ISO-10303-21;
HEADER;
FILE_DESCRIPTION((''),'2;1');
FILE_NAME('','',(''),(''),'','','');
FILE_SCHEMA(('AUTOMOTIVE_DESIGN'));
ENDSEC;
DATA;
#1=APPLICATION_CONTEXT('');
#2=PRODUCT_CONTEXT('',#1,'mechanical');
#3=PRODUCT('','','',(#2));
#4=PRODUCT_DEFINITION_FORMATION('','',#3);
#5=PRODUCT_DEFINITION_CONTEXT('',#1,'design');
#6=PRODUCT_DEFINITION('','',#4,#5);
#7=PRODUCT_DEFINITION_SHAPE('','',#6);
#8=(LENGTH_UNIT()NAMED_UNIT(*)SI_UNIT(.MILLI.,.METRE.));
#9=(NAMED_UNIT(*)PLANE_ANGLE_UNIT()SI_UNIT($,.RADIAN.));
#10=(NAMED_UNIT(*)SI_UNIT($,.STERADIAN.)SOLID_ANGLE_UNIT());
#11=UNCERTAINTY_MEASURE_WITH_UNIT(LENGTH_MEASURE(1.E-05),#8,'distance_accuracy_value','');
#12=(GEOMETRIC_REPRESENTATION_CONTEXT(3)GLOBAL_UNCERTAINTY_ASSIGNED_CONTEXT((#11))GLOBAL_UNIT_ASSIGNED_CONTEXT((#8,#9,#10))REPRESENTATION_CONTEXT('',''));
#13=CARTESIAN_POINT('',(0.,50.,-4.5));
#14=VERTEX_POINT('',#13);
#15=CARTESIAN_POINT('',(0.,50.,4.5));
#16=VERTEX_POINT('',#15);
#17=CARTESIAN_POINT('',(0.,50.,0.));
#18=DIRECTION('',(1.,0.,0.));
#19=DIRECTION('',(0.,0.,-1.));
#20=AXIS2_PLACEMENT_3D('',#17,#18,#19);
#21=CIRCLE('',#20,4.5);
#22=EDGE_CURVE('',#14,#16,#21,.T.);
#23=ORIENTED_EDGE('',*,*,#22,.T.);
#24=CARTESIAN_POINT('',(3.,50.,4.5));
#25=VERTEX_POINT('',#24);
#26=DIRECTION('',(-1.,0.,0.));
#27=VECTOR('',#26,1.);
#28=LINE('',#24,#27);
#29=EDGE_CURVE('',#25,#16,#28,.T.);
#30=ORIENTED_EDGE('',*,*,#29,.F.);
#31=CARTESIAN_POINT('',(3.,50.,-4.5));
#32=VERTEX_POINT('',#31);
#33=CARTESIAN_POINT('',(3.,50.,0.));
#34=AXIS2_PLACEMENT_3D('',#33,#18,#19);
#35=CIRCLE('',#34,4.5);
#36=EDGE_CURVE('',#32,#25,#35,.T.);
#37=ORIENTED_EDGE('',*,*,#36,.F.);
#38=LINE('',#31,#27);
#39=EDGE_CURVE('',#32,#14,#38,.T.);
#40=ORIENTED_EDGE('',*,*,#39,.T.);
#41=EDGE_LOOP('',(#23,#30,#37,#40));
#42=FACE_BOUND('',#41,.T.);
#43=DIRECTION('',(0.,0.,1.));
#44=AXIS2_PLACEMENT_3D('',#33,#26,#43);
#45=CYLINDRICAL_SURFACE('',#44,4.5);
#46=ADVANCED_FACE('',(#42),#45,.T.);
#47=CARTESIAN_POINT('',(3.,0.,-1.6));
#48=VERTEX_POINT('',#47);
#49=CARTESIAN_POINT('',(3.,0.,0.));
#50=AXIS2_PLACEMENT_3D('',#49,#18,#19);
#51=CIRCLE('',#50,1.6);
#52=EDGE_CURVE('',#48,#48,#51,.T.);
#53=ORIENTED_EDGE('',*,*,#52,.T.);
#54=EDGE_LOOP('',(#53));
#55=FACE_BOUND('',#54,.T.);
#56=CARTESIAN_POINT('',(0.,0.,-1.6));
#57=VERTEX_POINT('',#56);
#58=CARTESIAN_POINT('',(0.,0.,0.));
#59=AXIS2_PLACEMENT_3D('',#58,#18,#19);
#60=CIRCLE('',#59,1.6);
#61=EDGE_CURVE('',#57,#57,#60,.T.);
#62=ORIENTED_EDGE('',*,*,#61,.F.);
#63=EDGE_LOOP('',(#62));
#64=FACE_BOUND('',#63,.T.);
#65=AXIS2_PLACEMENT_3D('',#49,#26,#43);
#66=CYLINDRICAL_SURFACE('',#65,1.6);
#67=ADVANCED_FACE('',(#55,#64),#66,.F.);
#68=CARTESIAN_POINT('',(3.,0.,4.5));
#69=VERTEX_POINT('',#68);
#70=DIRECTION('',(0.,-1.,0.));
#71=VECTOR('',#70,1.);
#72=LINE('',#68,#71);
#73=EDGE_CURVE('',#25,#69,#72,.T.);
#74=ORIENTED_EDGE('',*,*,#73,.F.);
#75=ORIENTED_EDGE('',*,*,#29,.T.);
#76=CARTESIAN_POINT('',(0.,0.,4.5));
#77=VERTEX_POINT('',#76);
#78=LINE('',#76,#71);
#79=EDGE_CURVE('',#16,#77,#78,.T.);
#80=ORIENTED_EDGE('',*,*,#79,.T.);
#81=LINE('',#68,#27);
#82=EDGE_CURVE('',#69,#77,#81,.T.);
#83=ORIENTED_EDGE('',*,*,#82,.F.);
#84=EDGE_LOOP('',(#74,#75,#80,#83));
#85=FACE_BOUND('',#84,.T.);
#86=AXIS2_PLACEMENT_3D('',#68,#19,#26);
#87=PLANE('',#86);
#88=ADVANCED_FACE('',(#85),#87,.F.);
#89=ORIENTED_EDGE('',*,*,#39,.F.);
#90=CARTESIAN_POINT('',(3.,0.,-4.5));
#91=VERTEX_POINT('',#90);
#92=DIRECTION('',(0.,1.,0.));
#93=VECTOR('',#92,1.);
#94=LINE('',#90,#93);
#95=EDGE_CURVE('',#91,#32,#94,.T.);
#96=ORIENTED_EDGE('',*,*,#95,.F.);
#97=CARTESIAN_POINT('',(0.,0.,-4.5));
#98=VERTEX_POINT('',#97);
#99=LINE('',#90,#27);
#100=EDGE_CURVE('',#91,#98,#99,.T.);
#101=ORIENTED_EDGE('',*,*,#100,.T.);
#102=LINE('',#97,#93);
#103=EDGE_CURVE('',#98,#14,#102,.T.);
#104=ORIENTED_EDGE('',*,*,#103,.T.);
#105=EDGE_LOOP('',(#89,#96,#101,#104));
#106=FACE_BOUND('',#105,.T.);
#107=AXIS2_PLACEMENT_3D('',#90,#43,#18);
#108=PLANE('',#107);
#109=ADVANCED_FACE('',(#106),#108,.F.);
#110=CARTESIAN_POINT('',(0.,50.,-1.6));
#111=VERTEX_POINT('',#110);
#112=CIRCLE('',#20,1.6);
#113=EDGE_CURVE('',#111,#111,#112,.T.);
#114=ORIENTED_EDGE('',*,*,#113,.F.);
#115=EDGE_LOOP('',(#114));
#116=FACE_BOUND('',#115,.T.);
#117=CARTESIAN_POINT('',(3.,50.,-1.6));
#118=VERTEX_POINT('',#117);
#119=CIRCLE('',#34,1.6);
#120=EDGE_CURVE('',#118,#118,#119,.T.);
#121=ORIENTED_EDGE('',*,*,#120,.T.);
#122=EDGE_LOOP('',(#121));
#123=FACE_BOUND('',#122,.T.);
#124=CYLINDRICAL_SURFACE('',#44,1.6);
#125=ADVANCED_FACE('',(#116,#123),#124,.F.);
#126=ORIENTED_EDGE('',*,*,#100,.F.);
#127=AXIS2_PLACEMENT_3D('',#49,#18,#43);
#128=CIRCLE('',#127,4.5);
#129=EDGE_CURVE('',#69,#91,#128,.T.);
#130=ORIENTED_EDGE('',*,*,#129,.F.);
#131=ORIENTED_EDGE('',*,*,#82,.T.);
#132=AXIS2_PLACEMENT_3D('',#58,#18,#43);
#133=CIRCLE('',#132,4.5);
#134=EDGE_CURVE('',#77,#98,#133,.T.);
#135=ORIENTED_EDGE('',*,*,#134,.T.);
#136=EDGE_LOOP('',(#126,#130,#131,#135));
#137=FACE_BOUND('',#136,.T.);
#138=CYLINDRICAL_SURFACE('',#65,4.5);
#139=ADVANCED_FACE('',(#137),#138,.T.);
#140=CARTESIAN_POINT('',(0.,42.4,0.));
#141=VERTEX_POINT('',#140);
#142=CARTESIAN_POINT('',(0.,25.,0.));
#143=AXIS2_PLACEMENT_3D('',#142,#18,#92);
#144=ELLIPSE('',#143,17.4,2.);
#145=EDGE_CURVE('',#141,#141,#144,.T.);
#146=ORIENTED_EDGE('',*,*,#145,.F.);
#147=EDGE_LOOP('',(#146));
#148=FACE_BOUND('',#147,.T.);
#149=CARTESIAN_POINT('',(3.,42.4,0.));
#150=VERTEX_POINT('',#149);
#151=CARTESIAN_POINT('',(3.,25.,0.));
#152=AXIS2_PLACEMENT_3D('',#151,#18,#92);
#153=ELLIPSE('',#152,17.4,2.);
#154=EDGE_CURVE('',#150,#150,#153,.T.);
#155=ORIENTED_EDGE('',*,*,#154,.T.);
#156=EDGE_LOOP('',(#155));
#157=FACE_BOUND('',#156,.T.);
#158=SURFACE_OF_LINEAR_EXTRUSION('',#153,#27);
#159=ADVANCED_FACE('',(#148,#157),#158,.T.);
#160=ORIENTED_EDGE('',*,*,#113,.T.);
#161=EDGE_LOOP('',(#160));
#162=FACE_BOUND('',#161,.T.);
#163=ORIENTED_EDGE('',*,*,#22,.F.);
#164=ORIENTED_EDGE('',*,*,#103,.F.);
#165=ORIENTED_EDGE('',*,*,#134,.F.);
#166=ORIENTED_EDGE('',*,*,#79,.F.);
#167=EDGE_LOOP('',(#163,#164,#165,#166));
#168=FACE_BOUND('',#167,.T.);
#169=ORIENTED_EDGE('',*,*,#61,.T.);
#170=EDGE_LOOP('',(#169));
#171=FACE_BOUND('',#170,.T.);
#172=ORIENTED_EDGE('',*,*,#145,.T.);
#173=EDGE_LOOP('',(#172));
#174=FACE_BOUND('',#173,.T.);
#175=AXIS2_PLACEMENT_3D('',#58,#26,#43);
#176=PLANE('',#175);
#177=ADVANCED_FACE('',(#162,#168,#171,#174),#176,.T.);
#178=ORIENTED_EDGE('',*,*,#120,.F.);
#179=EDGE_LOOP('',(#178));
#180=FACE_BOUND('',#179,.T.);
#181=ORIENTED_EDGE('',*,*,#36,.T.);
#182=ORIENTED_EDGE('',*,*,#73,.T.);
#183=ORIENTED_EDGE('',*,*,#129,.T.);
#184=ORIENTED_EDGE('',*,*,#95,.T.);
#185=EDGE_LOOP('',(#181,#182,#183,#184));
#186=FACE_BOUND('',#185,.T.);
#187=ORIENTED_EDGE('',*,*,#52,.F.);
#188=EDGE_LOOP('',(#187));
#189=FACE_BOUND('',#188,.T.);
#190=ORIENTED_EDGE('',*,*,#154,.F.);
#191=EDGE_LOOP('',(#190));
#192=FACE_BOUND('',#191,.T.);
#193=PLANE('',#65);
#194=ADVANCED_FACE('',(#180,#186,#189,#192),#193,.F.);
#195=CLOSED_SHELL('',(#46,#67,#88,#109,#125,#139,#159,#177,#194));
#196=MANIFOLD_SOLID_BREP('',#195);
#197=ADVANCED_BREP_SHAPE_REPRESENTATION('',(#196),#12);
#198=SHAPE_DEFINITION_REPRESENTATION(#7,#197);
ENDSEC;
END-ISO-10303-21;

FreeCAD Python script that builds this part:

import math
import FreeCAD as App
import Part
import Sketcher
from FreeCAD import Vector

doc = App.newDocument("Part")
body = doc.addObject("PartDesign::Body", "Body")

sketch1 = body.newObject("Sketcher::SketchObject", "Sketch")
sketch1.AttachmentSupport = (doc.getObject("YZ_Plane"), [""])
sketch1.MapMode = "FlatFace"
sketch1.addGeometry(Part.LineSegment(Vector(50, 4.5, 0), Vector(0, 4.5, 0)), False)
sketch1.addGeometry(Part.ArcOfCircle(Part.Circle(Vector(0, 0, 0), Vector(0, 0, 1), 4.5), math.radians(90), math.radians(270)), False)
sketch1.addGeometry(Part.LineSegment(Vector(0, -4.5, 0), Vector(50, -4.5, 0)), False)
sketch1.addGeometry(Part.ArcOfCircle(Part.Circle(Vector(50, 0, 0), Vector(0, 0, 1), 4.5), math.radians(-90), math.radians(90)), False)
sketch1.addGeometry(Part.Circle(Vector(0, 0, 0), Vector(0, 0, 1), 1.6), False)
sketch1.addGeometry(Part.Ellipse(Vector(42.4, 0, 0), Vector(25, 2, 0), Vector(25, 0, 0)), False)
sketch1.addGeometry(Part.Circle(Vector(50, 0, 0), Vector(0, 0, 1), 1.6), False)
sketch1.addConstraint(Sketcher.Constraint("Block", 5))
sketch1.addConstraint(Sketcher.Constraint("Tangent", 0, 2, 1, 1))
sketch1.addConstraint(Sketcher.Constraint("Tangent", 1, 2, 2, 1))
sketch1.addConstraint(Sketcher.Constraint("Tangent", 2, 2, 3, 1))
sketch1.addConstraint(Sketcher.Constraint("Tangent", 3, 2, 0, 1))
sketch1.addConstraint(Sketcher.Constraint("Horizontal", 0))
sketch1.addConstraint(Sketcher.Constraint("Horizontal", 2))
sketch1.addConstraint(Sketcher.Constraint("Coincident", 1, 3, -1, 1))
sketch1.addConstraint(Sketcher.Constraint("Coincident", 4, 3, -1, 1))
sketch1.addConstraint(Sketcher.Constraint("Coincident", 6, 3, 3, 3))
sketch1.addConstraint(Sketcher.Constraint("Equal", 4, 6))
sketch1.addConstraint(Sketcher.Constraint("Diameter", 4, 3.2))
sketch1.addConstraint(Sketcher.Constraint("Radius", 1, 4.5))
sketch1.addConstraint(Sketcher.Constraint("DistanceX", 0, 2, 0, 1, 50.0))
pad1 = body.newObject("PartDesign::Pad", "Pad")
pad1.Profile = sketch1
pad1.Length = 3

doc.recompute()
